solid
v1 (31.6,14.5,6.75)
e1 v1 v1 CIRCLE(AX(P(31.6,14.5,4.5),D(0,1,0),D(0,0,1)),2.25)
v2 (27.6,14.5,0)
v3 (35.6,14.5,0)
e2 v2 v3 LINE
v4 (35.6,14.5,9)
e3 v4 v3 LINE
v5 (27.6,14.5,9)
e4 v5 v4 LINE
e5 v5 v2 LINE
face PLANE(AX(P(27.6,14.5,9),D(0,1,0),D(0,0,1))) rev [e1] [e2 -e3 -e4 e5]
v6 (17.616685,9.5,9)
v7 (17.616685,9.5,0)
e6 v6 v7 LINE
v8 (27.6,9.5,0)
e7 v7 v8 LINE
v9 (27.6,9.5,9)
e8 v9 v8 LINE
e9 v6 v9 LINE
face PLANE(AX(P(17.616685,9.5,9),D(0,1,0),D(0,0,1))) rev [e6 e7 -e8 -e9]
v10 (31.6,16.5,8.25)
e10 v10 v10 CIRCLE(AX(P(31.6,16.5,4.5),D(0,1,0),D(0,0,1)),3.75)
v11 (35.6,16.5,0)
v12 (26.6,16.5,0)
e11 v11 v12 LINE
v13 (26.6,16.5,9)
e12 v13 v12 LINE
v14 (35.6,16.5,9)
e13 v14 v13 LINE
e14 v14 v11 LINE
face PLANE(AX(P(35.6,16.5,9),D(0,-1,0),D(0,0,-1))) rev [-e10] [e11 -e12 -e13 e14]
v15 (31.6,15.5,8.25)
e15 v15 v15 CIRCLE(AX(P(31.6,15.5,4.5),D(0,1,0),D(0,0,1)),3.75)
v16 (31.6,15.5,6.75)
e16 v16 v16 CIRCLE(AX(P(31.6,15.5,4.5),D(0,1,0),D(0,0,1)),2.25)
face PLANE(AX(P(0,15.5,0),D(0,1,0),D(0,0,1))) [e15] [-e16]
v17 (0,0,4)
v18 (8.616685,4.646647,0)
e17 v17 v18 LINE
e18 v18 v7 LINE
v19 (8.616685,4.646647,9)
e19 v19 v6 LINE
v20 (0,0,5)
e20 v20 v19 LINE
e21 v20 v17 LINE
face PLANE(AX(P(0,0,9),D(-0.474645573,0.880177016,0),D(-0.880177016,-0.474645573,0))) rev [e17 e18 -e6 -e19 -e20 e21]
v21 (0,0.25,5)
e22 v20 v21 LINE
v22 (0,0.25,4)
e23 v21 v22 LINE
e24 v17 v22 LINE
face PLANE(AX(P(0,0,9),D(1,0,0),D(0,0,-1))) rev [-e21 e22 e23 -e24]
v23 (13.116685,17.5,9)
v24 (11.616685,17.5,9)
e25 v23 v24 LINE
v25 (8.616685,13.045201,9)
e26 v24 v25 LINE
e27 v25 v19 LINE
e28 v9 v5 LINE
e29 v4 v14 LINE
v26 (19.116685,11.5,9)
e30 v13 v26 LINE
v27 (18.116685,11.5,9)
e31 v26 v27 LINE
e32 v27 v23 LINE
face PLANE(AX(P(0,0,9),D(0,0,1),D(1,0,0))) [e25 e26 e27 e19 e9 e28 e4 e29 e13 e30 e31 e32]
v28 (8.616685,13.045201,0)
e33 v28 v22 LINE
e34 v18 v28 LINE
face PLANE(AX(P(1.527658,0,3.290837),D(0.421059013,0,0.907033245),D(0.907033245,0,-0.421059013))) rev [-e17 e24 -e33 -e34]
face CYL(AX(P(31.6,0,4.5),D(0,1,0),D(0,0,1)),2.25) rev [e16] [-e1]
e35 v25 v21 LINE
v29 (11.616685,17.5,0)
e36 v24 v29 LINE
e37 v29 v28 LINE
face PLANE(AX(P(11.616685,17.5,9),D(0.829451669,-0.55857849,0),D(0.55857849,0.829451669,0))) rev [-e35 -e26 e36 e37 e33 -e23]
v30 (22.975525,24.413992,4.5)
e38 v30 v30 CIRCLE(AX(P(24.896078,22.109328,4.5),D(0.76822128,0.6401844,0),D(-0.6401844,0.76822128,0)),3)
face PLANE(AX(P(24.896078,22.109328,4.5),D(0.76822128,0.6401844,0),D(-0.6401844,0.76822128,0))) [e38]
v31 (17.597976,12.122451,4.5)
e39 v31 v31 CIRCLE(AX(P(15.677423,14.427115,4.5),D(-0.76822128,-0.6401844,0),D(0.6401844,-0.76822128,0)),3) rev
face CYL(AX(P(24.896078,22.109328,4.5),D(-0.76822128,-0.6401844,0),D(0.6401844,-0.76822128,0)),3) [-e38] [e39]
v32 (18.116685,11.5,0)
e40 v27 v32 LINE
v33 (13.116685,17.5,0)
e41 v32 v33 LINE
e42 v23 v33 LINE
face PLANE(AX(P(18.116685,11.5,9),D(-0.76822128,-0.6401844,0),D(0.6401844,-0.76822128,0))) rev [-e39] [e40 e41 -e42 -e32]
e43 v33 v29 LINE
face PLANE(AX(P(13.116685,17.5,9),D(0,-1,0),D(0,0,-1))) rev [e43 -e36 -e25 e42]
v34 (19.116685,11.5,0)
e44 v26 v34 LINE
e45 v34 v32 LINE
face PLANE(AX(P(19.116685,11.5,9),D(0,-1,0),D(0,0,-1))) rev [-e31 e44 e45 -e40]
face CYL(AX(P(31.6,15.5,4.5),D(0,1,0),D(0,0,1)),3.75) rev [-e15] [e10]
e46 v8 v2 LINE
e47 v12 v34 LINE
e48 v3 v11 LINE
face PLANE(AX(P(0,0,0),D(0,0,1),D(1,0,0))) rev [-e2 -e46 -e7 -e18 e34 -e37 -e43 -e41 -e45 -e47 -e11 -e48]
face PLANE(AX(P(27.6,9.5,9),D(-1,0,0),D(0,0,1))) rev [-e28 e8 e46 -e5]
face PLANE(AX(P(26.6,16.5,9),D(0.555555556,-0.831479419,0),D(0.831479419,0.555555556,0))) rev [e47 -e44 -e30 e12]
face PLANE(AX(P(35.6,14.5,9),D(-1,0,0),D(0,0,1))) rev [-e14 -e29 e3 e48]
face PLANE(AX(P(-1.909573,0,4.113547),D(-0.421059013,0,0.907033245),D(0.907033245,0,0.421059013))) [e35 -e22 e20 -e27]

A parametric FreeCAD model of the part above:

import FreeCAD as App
import Part
import Sketcher

doc = App.newDocument("Part")
body = doc.addObject("PartDesign::Body", "Body")

# Sketch on XY plane
sketch1 = body.newObject("Sketcher::SketchObject", "Sketch")
sketch1.AttachmentSupport = (doc.getObject("XY_Plane"), [""])
sketch1.MapMode = "FlatFace"
sketch1.addGeometry([
    Part.LineSegment(App.Vector(0, 0, 0), App.Vector(17.62, 9.5, 0)),  # 0
    Part.LineSegment(App.Vector(17.62, 9.5, 0), App.Vector(27.6, 9.5, 0)),  # 1
    Part.LineSegment(App.Vector(27.6, 9.5, 0), App.Vector(27.6, 14.5, 0)),  # 2
    Part.LineSegment(App.Vector(27.6, 14.5, 0), App.Vector(35.6, 14.5, 0)),  # 3
    Part.LineSegment(App.Vector(35.6, 14.5, 0), App.Vector(35.6, 16.5, 0)),  # 4
    Part.LineSegment(App.Vector(35.6, 16.5, 0), App.Vector(26.6, 16.5, 0)),  # 5
    Part.LineSegment(App.Vector(26.6, 16.5, 0), App.Vector(19.12, 11.5, 0)),  # 6
    Part.LineSegment(App.Vector(19.12, 11.5, 0), App.Vector(18.12, 11.5, 0)),  # 7
    Part.LineSegment(App.Vector(18.12, 11.5, 0), App.Vector(13.12, 17.5, 0)),  # 8
    Part.LineSegment(App.Vector(13.12, 17.5, 0), App.Vector(11.62, 17.5, 0)),  # 9
    Part.LineSegment(App.Vector(11.62, 17.5, 0), App.Vector(0, 0.25, 0)),  # 10
    Part.LineSegment(App.Vector(0, 0.25, 0), App.Vector(0, 0, 0)),  # 11
], False)
sketch1.addConstraint([
    Sketcher.Constraint("Coincident", 0, 2, 1, 1),
    Sketcher.Constraint("Coincident", 1, 2, 2, 1),
    Sketcher.Constraint("Coincident", 2, 2, 3, 1),
    Sketcher.Constraint("Coincident", 3, 2, 4, 1),
    Sketcher.Constraint("Coincident", 4, 2, 5, 1),
    Sketcher.Constraint("Coincident", 5, 2, 6, 1),
    Sketcher.Constraint("Coincident", 6, 2, 7, 1),
    Sketcher.Constraint("Coincident", 7, 2, 8, 1),
    Sketcher.Constraint("Coincident", 8, 2, 9, 1),
    Sketcher.Constraint("Coincident", 9, 2, 10, 1),
    Sketcher.Constraint("Coincident", 10, 2, 11, 1),
    Sketcher.Constraint("Coincident", 11, 2, 0, 1),
    Sketcher.Constraint("Horizontal", 1),
    Sketcher.Constraint("Vertical", 2),
    Sketcher.Constraint("Horizontal", 3),
    Sketcher.Constraint("Vertical", 4),
    Sketcher.Constraint("Horizontal", 5),
    Sketcher.Constraint("Horizontal", 7),
    Sketcher.Constraint("Horizontal", 9),
    Sketcher.Constraint("Vertical", 11),
    Sketcher.Constraint("Coincident", 11, 2, -1, 1),
    Sketcher.Constraint("DistanceX", 3, 1, 3, 2, 8.0),
    Sketcher.Constraint("DistanceX", 5, 2, 5, 1, 9.0),
    Sketcher.Constraint("DistanceX", 7, 2, 7, 1, 1.0),
    Sketcher.Constraint("DistanceY", 2, 1, 2, 2, 5.0),
    Sketcher.Constraint("DistanceY", 4, 1, 4, 2, 2.0),
    Sketcher.Constraint("Distance", 6, 9.0),
    Sketcher.Constraint("DistanceX", 9, 2, 9, 1, 1.5),
    Sketcher.Constraint("DistanceY", 0, 2, 6, 2, 2.0),
    Sketcher.Constraint("DistanceX", 8, 2, 7, 2, 5.0),
    Sketcher.Constraint("DistanceY", 7, 2, 8, 2, 6.0),
    Sketcher.Constraint("DistanceX", 9, 2, 0, 2, 6.0),
    Sketcher.Constraint("DistanceY", 11, 2, 11, 1, 0.25),
    Sketcher.Constraint("DistanceY", -1, 1, 0, 2, 9.5),
    Sketcher.Constraint("DistanceX", -1, 1, 1, 2, 27.6),
])
pad1 = body.newObject("PartDesign::Pad", "Pad")
pad1.Profile = sketch1
pad1.Length = 9

# Sketch on XZ plane
sketch2 = body.newObject("Sketcher::SketchObject", "Sketch001")
sketch2.AttachmentSupport = (doc.getObject("XZ_Plane"), [""])
sketch2.MapMode = "FlatFace"
sketch2.AttachmentOffset = App.Placement(App.Vector(0, 0, -16.5), App.Rotation())
sketch2.addGeometry([
    Part.Circle(App.Vector(31.6, 4.5, 0), App.Vector(0, 0, 1), 2.2),  # 0
    Part.LineSegment(App.Vector(0, 0, 0), App.Vector(0, 4, 0)),  # 1
    Part.LineSegment(App.Vector(0, 4, 0), App.Vector(8.6, 0, 0)),  # 2
    Part.LineSegment(App.Vector(8.6, 0, 0), App.Vector(0, 0, 0)),  # 3
    Part.LineSegment(App.Vector(8.6, 9, 0), App.Vector(0, 5, 0)),  # 4
    Part.LineSegment(App.Vector(0, 5, 0), App.Vector(0, 9, 0)),  # 5
    Part.LineSegment(App.Vector(0, 9, 0), App.Vector(8.6, 9, 0)),  # 6
], False)
sketch2.addConstraint([
    Sketcher.Constraint("Coincident", 1, 2, 2, 1),
    Sketcher.Constraint("Coincident", 2, 2, 3, 1),
    Sketcher.Constraint("Coincident", 3, 2, 1, 1),
    Sketcher.Constraint("Coincident", 4, 2, 5, 1),
    Sketcher.Constraint("Coincident", 5, 2, 6, 1),
    Sketcher.Constraint("Coincident", 6, 2, 4, 1),
    Sketcher.Constraint("Vertical", 1),
    Sketcher.Constraint("Horizontal", 3),
    Sketcher.Constraint("Vertical", 5),
    Sketcher.Constraint("Horizontal", 6),
    Sketcher.Constraint("Coincident", 3, 2, -1, 1),
    Sketcher.Constraint("PointOnObject", 4, 2, -2),
    Sketcher.Constraint("Vertical", 2, 2, 6, 2),
    Sketcher.Constraint("Equal", 1, 5),
    Sketcher.Constraint("Diameter", 0, 4.5),
    Sketcher.Constraint("DistanceY", 1, 1, 1, 2, 4.0),
    Sketcher.Constraint("DistanceY", -1, 1, 4, 2, 5.0),
    Sketcher.Constraint("DistanceX", -1, 1, 0, 3, 31.6),
    Sketcher.Constraint("DistanceY", -1, 1, 0, 3, 4.5),
    Sketcher.Constraint("DistanceX", 3, 2, 3, 1, 8.616685),
])
pocket1 = body.newObject("PartDesign::Pocket", "Pocket")
pocket1.Profile = sketch2
pocket1.Length = 16.5
pocket1.Reversed = True

# Sketch on XZ plane
sketch3 = body.newObject("Sketcher::SketchObject", "Sketch002")
sketch3.AttachmentSupport = (doc.getObject("XZ_Plane"), [""])
sketch3.MapMode = "FlatFace"
sketch3.AttachmentOffset = App.Placement(App.Vector(0, 0, -16.5), App.Rotation())
sketch3.addGeometry([
    Part.Circle(App.Vector(31.6, 4.5, 0), App.Vector(0, 0, 1), 3.8),
    Part.Circle(App.Vector(31.6, 4.5, 0), App.Vector(0, 0, 1), 2.2),
], False)
sketch3.addConstraint([
    Sketcher.Constraint("Coincident", 1, 3, 0, 3),
    Sketcher.Constraint("Diameter", 0, 7.5),
    Sketcher.Constraint("Diameter", 1, 4.5),
    Sketcher.Constraint("DistanceX", -1, 1, 0, 3, 31.6),
    Sketcher.Constraint("DistanceY", -1, 1, 0, 3, 4.5),
])
pocket2 = body.newObject("PartDesign::Pocket", "Pocket001")
pocket2.Profile = sketch3
pocket2.Length = 1
pocket2.Reversed = True

# Sketch on an angled plane
sketch4 = body.newObject("Sketcher::SketchObject", "Sketch003")
sketch4.Placement = App.Placement(App.Vector(16.347552, 13.62296, 0), App.Rotation(App.Vector(0, 0, -1), App.Vector(-0.6401844, 0.76822128, 0), App.Vector(0.76822128, 0.6401844, 0), "ZXY"))
sketch4.addGeometry(Part.Circle(App.Vector(-4.5, 1, 0), App.Vector(0, 0, 1), 3), False)
sketch4.addConstraint([
    Sketcher.Constraint("Diameter", 0, 6.0),
    Sketcher.Constraint("DistanceX", 0, 3, -1, 1, 4.5),
    Sketcher.Constraint("DistanceY", -1, 1, 0, 3, 1.046775),
])
pad2 = body.newObject("PartDesign::Pad", "Pad001")
pad2.Profile = sketch4
pad2.Length = 12

doc.recompute()
